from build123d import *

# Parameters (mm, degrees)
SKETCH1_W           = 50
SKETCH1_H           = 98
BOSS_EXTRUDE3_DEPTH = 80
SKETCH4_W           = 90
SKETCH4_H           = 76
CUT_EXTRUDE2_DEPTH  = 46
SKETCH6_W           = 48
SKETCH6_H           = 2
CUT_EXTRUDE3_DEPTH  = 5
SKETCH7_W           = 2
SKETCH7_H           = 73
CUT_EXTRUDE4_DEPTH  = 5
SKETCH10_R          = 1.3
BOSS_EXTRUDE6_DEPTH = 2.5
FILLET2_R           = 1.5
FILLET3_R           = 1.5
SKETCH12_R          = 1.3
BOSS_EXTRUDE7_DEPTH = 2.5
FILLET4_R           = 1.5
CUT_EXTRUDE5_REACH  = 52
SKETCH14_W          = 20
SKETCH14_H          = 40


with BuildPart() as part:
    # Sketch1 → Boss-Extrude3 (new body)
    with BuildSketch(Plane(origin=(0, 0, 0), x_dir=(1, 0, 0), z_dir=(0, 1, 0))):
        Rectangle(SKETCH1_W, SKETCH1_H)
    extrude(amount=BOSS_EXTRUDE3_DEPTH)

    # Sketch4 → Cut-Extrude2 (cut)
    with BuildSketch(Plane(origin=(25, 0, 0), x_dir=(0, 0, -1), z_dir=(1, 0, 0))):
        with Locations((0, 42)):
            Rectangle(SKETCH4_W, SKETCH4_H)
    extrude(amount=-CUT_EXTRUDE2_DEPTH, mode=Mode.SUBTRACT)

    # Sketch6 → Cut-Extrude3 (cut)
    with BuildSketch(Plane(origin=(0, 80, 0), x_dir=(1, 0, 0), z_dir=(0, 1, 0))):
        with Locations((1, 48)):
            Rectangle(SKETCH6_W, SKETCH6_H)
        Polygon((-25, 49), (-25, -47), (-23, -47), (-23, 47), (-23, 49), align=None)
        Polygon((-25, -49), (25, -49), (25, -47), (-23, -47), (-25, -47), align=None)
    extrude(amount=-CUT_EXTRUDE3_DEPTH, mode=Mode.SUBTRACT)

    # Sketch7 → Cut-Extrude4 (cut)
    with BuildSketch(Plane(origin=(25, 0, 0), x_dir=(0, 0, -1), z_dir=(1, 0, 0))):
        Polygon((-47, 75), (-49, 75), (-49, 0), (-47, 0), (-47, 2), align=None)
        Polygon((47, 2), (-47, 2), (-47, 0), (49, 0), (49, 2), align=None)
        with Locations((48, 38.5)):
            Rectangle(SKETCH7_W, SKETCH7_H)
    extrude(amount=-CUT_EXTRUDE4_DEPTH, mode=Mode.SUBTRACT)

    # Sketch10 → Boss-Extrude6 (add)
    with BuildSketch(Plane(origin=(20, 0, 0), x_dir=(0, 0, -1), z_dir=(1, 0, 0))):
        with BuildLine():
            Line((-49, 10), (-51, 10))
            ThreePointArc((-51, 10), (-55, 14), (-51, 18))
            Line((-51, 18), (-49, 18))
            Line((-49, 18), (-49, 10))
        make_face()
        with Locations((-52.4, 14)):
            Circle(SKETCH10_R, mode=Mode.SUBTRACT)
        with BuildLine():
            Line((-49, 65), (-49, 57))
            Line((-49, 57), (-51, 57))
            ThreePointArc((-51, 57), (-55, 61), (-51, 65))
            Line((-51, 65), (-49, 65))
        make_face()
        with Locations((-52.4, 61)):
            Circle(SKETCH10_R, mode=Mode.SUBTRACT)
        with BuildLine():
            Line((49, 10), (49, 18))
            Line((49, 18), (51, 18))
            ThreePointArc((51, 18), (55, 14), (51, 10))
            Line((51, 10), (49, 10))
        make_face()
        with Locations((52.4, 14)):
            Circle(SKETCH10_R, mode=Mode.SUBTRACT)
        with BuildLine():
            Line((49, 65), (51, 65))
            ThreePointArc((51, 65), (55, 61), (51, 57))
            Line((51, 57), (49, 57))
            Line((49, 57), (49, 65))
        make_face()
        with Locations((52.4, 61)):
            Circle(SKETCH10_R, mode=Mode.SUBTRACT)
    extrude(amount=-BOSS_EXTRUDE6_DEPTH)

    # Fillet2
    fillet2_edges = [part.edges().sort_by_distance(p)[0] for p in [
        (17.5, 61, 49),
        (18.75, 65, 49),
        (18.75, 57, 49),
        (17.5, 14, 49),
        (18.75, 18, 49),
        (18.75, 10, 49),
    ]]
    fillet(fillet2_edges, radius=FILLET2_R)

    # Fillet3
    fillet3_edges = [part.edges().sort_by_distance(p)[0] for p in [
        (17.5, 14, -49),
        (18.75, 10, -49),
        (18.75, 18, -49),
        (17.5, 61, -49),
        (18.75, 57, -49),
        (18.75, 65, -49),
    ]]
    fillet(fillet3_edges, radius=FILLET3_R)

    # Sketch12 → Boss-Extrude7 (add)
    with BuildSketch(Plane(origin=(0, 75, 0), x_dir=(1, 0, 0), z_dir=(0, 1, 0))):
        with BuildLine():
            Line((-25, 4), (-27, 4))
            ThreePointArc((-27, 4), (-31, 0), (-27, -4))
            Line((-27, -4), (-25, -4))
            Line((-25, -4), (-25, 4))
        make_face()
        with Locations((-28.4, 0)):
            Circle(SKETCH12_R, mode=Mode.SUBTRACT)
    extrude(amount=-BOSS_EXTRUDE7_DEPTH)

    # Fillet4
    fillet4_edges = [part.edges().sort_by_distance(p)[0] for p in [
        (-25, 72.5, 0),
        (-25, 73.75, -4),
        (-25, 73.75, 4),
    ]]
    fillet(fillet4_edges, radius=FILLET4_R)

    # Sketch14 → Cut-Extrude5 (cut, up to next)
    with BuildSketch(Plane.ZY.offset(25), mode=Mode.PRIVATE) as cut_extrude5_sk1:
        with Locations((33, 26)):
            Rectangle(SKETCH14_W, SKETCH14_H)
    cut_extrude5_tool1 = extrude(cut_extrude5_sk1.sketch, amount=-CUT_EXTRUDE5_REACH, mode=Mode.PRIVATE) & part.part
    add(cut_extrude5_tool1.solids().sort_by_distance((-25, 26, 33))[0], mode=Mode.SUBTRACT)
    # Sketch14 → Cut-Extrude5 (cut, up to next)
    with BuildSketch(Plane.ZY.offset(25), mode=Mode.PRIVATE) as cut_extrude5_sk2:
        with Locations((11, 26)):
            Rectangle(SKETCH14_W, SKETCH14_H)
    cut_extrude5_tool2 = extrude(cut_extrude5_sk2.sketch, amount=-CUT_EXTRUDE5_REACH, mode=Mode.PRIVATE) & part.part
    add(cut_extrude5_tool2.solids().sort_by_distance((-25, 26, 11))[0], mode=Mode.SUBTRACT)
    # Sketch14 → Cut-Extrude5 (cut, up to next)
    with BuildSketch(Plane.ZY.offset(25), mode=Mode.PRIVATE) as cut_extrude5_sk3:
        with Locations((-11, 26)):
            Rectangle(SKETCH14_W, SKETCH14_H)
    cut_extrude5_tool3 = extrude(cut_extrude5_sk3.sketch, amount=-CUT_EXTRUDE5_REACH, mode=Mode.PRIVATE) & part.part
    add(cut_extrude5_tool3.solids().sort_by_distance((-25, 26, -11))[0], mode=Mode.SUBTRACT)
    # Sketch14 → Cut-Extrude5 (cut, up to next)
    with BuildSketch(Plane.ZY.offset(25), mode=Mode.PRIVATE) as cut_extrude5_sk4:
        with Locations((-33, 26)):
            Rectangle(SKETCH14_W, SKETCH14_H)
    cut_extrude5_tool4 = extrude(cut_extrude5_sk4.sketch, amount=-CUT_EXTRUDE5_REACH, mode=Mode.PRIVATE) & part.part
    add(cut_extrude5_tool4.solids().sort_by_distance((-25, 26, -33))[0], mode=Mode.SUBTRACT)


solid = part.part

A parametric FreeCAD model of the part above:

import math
import FreeCAD as App
import Part
import Sketcher


def edges_at(feature, points):
    """Names of the edges that pass closest to the given points."""
    edges = feature.Shape.Edges
    near = lambda p: min(range(len(edges)), key=lambda i: edges[i].distToShape(Part.Vertex(*p))[0])
    return sorted({f"Edge{near(p) + 1}" for p in points})

doc = App.newDocument("Part")
body = doc.addObject("PartDesign::Body", "Body")

# Sketch on XZ plane
sketch1 = body.newObject("Sketcher::SketchObject", "Sketch")
sketch1.AttachmentSupport = (doc.getObject("XZ_Plane"), [""])
sketch1.MapMode = "FlatFace"
sketch1.addGeometry([
    Part.LineSegment(App.Vector(-25, -49, 0), App.Vector(-25, 49, 0)),
    Part.LineSegment(App.Vector(-25, 49, 0), App.Vector(25, 49, 0)),
    Part.LineSegment(App.Vector(25, 49, 0), App.Vector(25, -49, 0)),
    Part.LineSegment(App.Vector(25, -49, 0), App.Vector(-25, -49, 0)),
], False)
sketch1.addConstraint([
    Sketcher.Constraint("Coincident", 0, 2, 1, 1),
    Sketcher.Constraint("Coincident", 1, 2, 2, 1),
    Sketcher.Constraint("Coincident", 2, 2, 3, 1),
    Sketcher.Constraint("Coincident", 3, 2, 0, 1),
    Sketcher.Constraint("Vertical", 0),
    Sketcher.Constraint("Horizontal", 1),
    Sketcher.Constraint("Vertical", 2),
    Sketcher.Constraint("Horizontal", 3),
    Sketcher.Constraint("Symmetric", 0, 2, 2, 2, -1, 1),
    Sketcher.Constraint("DistanceX", 1, 1, 1, 2, 50.0),
    Sketcher.Constraint("DistanceY", 0, 1, 0, 2, 98.0),
])
pad1 = body.newObject("PartDesign::Pad", "Pad")
pad1.Profile = sketch1
pad1.Length = 80
pad1.Reversed = True

# Sketch on YZ plane
sketch2 = body.newObject("Sketcher::SketchObject", "Sketch001")
sketch2.AttachmentSupport = (doc.getObject("YZ_Plane"), [""])
sketch2.MapMode = "FlatFace"
sketch2.AttachmentOffset = App.Placement(App.Vector(0, 0, 25), App.Rotation())
sketch2.addGeometry([
    Part.LineSegment(App.Vector(80, 45, 0), App.Vector(4, 45, 0)),
    Part.LineSegment(App.Vector(4, 45, 0), App.Vector(4, -45, 0)),
    Part.LineSegment(App.Vector(4, -45, 0), App.Vector(80, -45, 0)),
    Part.LineSegment(App.Vector(80, -45, 0), App.Vector(80, 45, 0)),
], False)
sketch2.addConstraint([
    Sketcher.Constraint("Coincident", 0, 2, 1, 1),
    Sketcher.Constraint("Coincident", 1, 2, 2, 1),
    Sketcher.Constraint("Coincident", 2, 2, 3, 1),
    Sketcher.Constraint("Coincident", 3, 2, 0, 1),
    Sketcher.Constraint("Horizontal", 0),
    Sketcher.Constraint("Vertical", 1),
    Sketcher.Constraint("Horizontal", 2),
    Sketcher.Constraint("Vertical", 3),
    Sketcher.Constraint("DistanceX", 0, 2, 0, 1, 76.0),
    Sketcher.Constraint("DistanceY", 1, 2, 1, 1, 90.0),
    Sketcher.Constraint("DistanceX", -1, 1, 0, 2, 4.0),
    Sketcher.Constraint("DistanceY", -1, 1, 0, 2, 45.0),
])
pocket1 = body.newObject("PartDesign::Pocket", "Pocket")
pocket1.Profile = sketch2
pocket1.Length = 46

# Sketch on XZ plane
sketch3 = body.newObject("Sketcher::SketchObject", "Sketch002")
sketch3.AttachmentSupport = (doc.getObject("XZ_Plane"), [""])
sketch3.MapMode = "FlatFace"
sketch3.AttachmentOffset = App.Placement(App.Vector(0, 0, -80), App.Rotation())
sketch3.addGeometry([
    Part.LineSegment(App.Vector(-23, -47, 0), App.Vector(25, -47, 0)),  # 0
    Part.LineSegment(App.Vector(25, -47, 0), App.Vector(25, -49, 0)),  # 1
    Part.LineSegment(App.Vector(25, -49, 0), App.Vector(-25, -49, 0)),  # 2
    Part.LineSegment(App.Vector(-25, -49, 0), App.Vector(-25, 49, 0)),  # 3
    Part.LineSegment(App.Vector(-25, 49, 0), App.Vector(25, 49, 0)),  # 4
    Part.LineSegment(App.Vector(25, 49, 0), App.Vector(25, 47, 0)),  # 5
    Part.LineSegment(App.Vector(25, 47, 0), App.Vector(-23, 47, 0)),  # 6
    Part.LineSegment(App.Vector(-23, 47, 0), App.Vector(-23, -47, 0)),  # 7
], False)
sketch3.addConstraint([
    Sketcher.Constraint("Coincident", 0, 2, 1, 1),
    Sketcher.Constraint("Coincident", 1, 2, 2, 1),
    Sketcher.Constraint("Coincident", 2, 2, 3, 1),
    Sketcher.Constraint("Coincident", 3, 2, 4, 1),
    Sketcher.Constraint("Coincident", 4, 2, 5, 1),
    Sketcher.Constraint("Coincident", 5, 2, 6, 1),
    Sketcher.Constraint("Coincident", 6, 2, 7, 1),
    Sketcher.Constraint("Coincident", 7, 2, 0, 1),
    Sketcher.Constraint("Horizontal", 0),
    Sketcher.Constraint("Vertical", 1),
    Sketcher.Constraint("Horizontal", 2),
    Sketcher.Constraint("Vertical", 3),
    Sketcher.Constraint("Horizontal", 4),
    Sketcher.Constraint("Vertical", 5),
    Sketcher.Constraint("Horizontal", 6),
    Sketcher.Constraint("Vertical", 7),
    Sketcher.Constraint("Symmetric", 1, 2, 3, 2, -1, 1),
    Sketcher.Constraint("Symmetric", 0, 2, 5, 2, -1),
    Sketcher.Constraint("DistanceX", 0, 1, 0, 2, 48.0),
    Sketcher.Constraint("DistanceX", 2, 2, 2, 1, 50.0),
    Sketcher.Constraint("DistanceY", 1, 2, 1, 1, 2.0),
    Sketcher.Constraint("DistanceY", 3, 1, 3, 2, 98.0),
])
pocket2 = body.newObject("PartDesign::Pocket", "Pocket001")
pocket2.Profile = sketch3
pocket2.Length = 5
pocket2.Reversed = True

# Sketch on YZ plane
sketch4 = body.newObject("Sketcher::SketchObject", "Sketch003")
sketch4.AttachmentSupport = (doc.getObject("YZ_Plane"), [""])
sketch4.MapMode = "FlatFace"
sketch4.AttachmentOffset = App.Placement(App.Vector(0, 0, 25), App.Rotation())
sketch4.addGeometry([
    Part.LineSegment(App.Vector(75, 47, 0), App.Vector(75, 49, 0)),  # 0
    Part.LineSegment(App.Vector(75, 49, 0), App.Vector(0, 49, 0)),  # 1
    Part.LineSegment(App.Vector(0, 49, 0), App.Vector(0, -49, 0)),  # 2
    Part.LineSegment(App.Vector(0, -49, 0), App.Vector(75, -49, 0)),  # 3
    Part.LineSegment(App.Vector(75, -49, 0), App.Vector(75, -47, 0)),  # 4
    Part.LineSegment(App.Vector(75, -47, 0), App.Vector(2, -47, 0)),  # 5
    Part.LineSegment(App.Vector(2, -47, 0), App.Vector(2, 47, 0)),  # 6
    Part.LineSegment(App.Vector(2, 47, 0), App.Vector(75, 47, 0)),  # 7
], False)
sketch4.addConstraint([
    Sketcher.Constraint("Coincident", 0, 2, 1, 1),
    Sketcher.Constraint("Coincident", 1, 2, 2, 1),
    Sketcher.Constraint("Coincident", 2, 2, 3, 1),
    Sketcher.Constraint("Coincident", 3, 2, 4, 1),
    Sketcher.Constraint("Coincident", 4, 2, 5, 1),
    Sketcher.Constraint("Coincident", 5, 2, 6, 1),
    Sketcher.Constraint("Coincident", 6, 2, 7, 1),
    Sketcher.Constraint("Coincident", 7, 2, 0, 1),
    Sketcher.Constraint("Vertical", 0),
    Sketcher.Constraint("Horizontal", 1),
    Sketcher.Constraint("Vertical", 2),
    Sketcher.Constraint("Horizontal", 3),
    Sketcher.Constraint("Vertical", 4),
    Sketcher.Constraint("Horizontal", 5),
    Sketcher.Constraint("Vertical", 6),
    Sketcher.Constraint("Horizontal", 7),
    Sketcher.Constraint("Symmetric", 1, 2, 2, 2, -1, 1),
    Sketcher.Constraint("Symmetric", 4, 2, 7, 2, -1),
    Sketcher.Constraint("DistanceX", 1, 2, 1, 1, 75.0),
    Sketcher.Constraint("DistanceX", 5, 2, 5, 1, 73.0),
    Sketcher.Constraint("DistanceY", 0, 1, 0, 2, 2.0),
    Sketcher.Constraint("DistanceY", 2, 2, 2, 1, 98.0),
])
pocket3 = body.newObject("PartDesign::Pocket", "Pocket002")
pocket3.Profile = sketch4
pocket3.Length = 5

# Sketch on YZ plane
sketch5 = body.newObject("Sketcher::SketchObject", "Sketch004")
sketch5.AttachmentSupport = (doc.getObject("YZ_Plane"), [""])
sketch5.MapMode = "FlatFace"
sketch5.AttachmentOffset = App.Placement(App.Vector(0, 0, 20), App.Rotation())
sketch5.addGeometry([
    Part.LineSegment(App.Vector(10, 51, 0), App.Vector(10, 49, 0)),  # 0
    Part.LineSegment(App.Vector(10, 49, 0), App.Vector(18, 49, 0)),  # 1
    Part.LineSegment(App.Vector(18, 49, 0), App.Vector(18, 51, 0)),  # 2
    Part.ArcOfCircle(Part.Circle(App.Vector(14, 51, 0), App.Vector(0, 0, 1), 4), math.radians(0), math.radians(180)),  # 3
    Part.Circle(App.Vector(14, 52.4, 0), App.Vector(0, 0, 1), 1.3),  # 4
    Part.LineSegment(App.Vector(57, 49, 0), App.Vector(65, 49, 0)),  # 5
    Part.LineSegment(App.Vector(65, 49, 0), App.Vector(65, 51, 0)),  # 6
    Part.ArcOfCircle(Part.Circle(App.Vector(61, 51, 0), App.Vector(0, 0, 1), 4), math.radians(0), math.radians(180)),  # 7
    Part.LineSegment(App.Vector(57, 51, 0), App.Vector(57, 49, 0)),  # 8
    Part.Circle(App.Vector(61, 52.4, 0), App.Vector(0, 0, 1), 1.3),  # 9
    Part.LineSegment(App.Vector(18, -49, 0), App.Vector(10, -49, 0)),  # 10
    Part.LineSegment(App.Vector(10, -49, 0), App.Vector(10, -51, 0)),  # 11
    Part.ArcOfCircle(Part.Circle(App.Vector(14, -51, 0), App.Vector(0, 0, 1), 4), math.radians(180), math.radians(360)),  # 12
    Part.LineSegment(App.Vector(18, -51, 0), App.Vector(18, -49, 0)),  # 13
    Part.Circle(App.Vector(14, -52.4, 0), App.Vector(0, 0, 1), 1.3),  # 14
    Part.LineSegment(App.Vector(65, -51, 0), App.Vector(65, -49, 0)),  # 15
    Part.LineSegment(App.Vector(65, -49, 0), App.Vector(57, -49, 0)),  # 16
    Part.LineSegment(App.Vector(57, -49, 0), App.Vector(57, -51, 0)),  # 17
    Part.ArcOfCircle(Part.Circle(App.Vector(61, -51, 0), App.Vector(0, 0, 1), 4), math.radians(180), math.radians(360)),  # 18
    Part.Circle(App.Vector(61, -52.4, 0), App.Vector(0, 0, 1), 1.3),  # 19
], False)
sketch5.addConstraint([
    Sketcher.Constraint("Coincident", 0, 2, 1, 1),
    Sketcher.Constraint("Coincident", 1, 2, 2, 1),
    Sketcher.Constraint("Tangent", 2, 2, 3, 1),
    Sketcher.Constraint("Tangent", 3, 2, 0, 1),
    Sketcher.Constraint("Coincident", 5, 2, 6, 1),
    Sketcher.Constraint("Tangent", 6, 2, 7, 1),
    Sketcher.Constraint("Tangent", 7, 2, 8, 1),
    Sketcher.Constraint("Coincident", 8, 2, 5, 1),
    Sketcher.Constraint("Coincident", 10, 2, 11, 1),
    Sketcher.Constraint("Tangent", 11, 2, 12, 1),
    Sketcher.Constraint("Tangent", 12, 2, 13, 1),
    Sketcher.Constraint("Coincident", 13, 2, 10, 1),
    Sketcher.Constraint("Coincident", 15, 2, 16, 1),
    Sketcher.Constraint("Coincident", 16, 2, 17, 1),
    Sketcher.Constraint("Tangent", 17, 2, 18, 1),
    Sketcher.Constraint("Tangent", 18, 2, 15, 1),
    Sketcher.Constraint("Vertical", 0),
    Sketcher.Constraint("Horizontal", 1),
    Sketcher.Constraint("Vertical", 2),
    Sketcher.Constraint("Horizontal", 5),
    Sketcher.Constraint("Vertical", 6),
    Sketcher.Constraint("Vertical", 8),
    Sketcher.Constraint("Horizontal", 10),
    Sketcher.Constraint("Vertical", 11),
    Sketcher.Constraint("Vertical", 13),
    Sketcher.Constraint("Vertical", 15),
    Sketcher.Constraint("Horizontal", 16),
    Sketcher.Constraint("Vertical", 17),
    Sketcher.Constraint("Equal", 3, 7),
    Sketcher.Constraint("Equal", 4, 9),
    Sketcher.Constraint("Equal", 7, 12),
    Sketcher.Constraint("Equal", 9, 14),
    Sketcher.Constraint("Equal", 12, 18),
    Sketcher.Constraint("Equal", 14, 19),
    Sketcher.Constraint("Symmetric", 3, 3, 12, 3, -1),
    Sketcher.Constraint("Symmetric", 4, 3, 14, 3, -1),
    Sketcher.Constraint("Symmetric", 7, 3, 18, 3, -1),
    Sketcher.Constraint("Symmetric", 9, 3, 19, 3, -1),
    Sketcher.Constraint("Horizontal", 3, 3, 7, 3),
    Sketcher.Constraint("Horizontal", 4, 3, 9, 3),
    Sketcher.Constraint("Horizontal", 1, 2, 5, 2),
    Sketcher.Constraint("Horizontal", 13, 2, 15, 2),
    Sketcher.Constraint("Vertical", 3, 3, 4, 3),
    Sketcher.Constraint("Vertical", 7, 3, 9, 3),
    Sketcher.Constraint("Equal", 8, 11),
    Sketcher.Constraint("Radius", 3, 4.0),
    Sketcher.Constraint("Diameter", 4, 2.6),
    Sketcher.Constraint("DistanceY", 0, 2, 0, 1, 2.0),
    Sketcher.Constraint("DistanceX", -1, 1, 3, 3, 14.0),
    Sketcher.Constraint("DistanceY", -1, 1, 3, 3, 51.0),
    Sketcher.Constraint("DistanceX", -1, 1, 7, 3, 61.0),
    Sketcher.Constraint("DistanceY", -1, 1, 4, 3, 52.4),
])
pad2 = body.newObject("PartDesign::Pad", "Pad001")
pad2.Profile = sketch5
pad2.Length = 2.5
pad2.Reversed = True
doc.recompute()

fillet = body.newObject("PartDesign::Fillet", "Fillet")
fillet.Base = (pad2, edges_at(pad2, [
    (17.5, 61, 49),
    (18.75, 65, 49),
    (18.75, 57, 49),
    (17.5, 14, 49),
    (18.75, 18, 49),
    (18.75, 10, 49),
]))
fillet.Radius = 1.5
doc.recompute()

fillet2 = body.newObject("PartDesign::Fillet", "Fillet001")
fillet2.Base = (fillet, edges_at(fillet, [
    (17.5, 14, -49),
    (18.75, 10, -49),
    (18.75, 18, -49),
    (17.5, 61, -49),
    (18.75, 57, -49),
    (18.75, 65, -49),
]))
fillet2.Radius = 1.5

# Sketch on XZ plane
sketch6 = body.newObject("Sketcher::SketchObject", "Sketch005")
sketch6.AttachmentSupport = (doc.getObject("XZ_Plane"), [""])
sketch6.MapMode = "FlatFace"
sketch6.AttachmentOffset = App.Placement(App.Vector(0, 0, -75), App.Rotation())
sketch6.addGeometry([
    Part.LineSegment(App.Vector(-25, -4, 0), App.Vector(-27, -4, 0)),  # 0
    Part.ArcOfCircle(Part.Circle(App.Vector(-27, 0, 0), App.Vector(0, 0, 1), 4), math.radians(90), math.radians(270)),  # 1
    Part.LineSegment(App.Vector(-27, 4, 0), App.Vector(-25, 4, 0)),  # 2
    Part.LineSegment(App.Vector(-25, 4, 0), App.Vector(-25, -4, 0)),  # 3
    Part.Circle(App.Vector(-28.4, 0, 0), App.Vector(0, 0, 1), 1.3),  # 4
], False)
sketch6.addConstraint([
    Sketcher.Constraint("Tangent", 0, 2, 1, 2),
    Sketcher.Constraint("Tangent", 1, 1, 2, 1),
    Sketcher.Constraint("Coincident", 2, 2, 3, 1),
    Sketcher.Constraint("Coincident", 3, 2, 0, 1),
    Sketcher.Constraint("Horizontal", 0),
    Sketcher.Constraint("Horizontal", 2),
    Sketcher.Constraint("Vertical", 3),
    Sketcher.Constraint("PointOnObject", 1, 3, -1),
    Sketcher.Constraint("PointOnObject", 4, 3, -1),
    Sketcher.Constraint("Radius", 1, 4.0),
    Sketcher.Constraint("Diameter", 4, 2.6),
    Sketcher.Constraint("DistanceX", 0, 2, 0, 1, 2.0),
    Sketcher.Constraint("DistanceX", 1, 3, -1, 1, 27.0),
    Sketcher.Constraint("DistanceX", 4, 3, -1, 1, 28.4),
])
pad3 = body.newObject("PartDesign::Pad", "Pad002")
pad3.Profile = sketch6
pad3.Length = 2.5
doc.recompute()

fillet3 = body.newObject("PartDesign::Fillet", "Fillet002")
fillet3.Base = (pad3, edges_at(pad3, [(-25, 72.5, 0), (-25, 73.75, -4), (-25, 73.75, 4)]))
fillet3.Radius = 1.5

# Sketch on YZ plane
sketch7 = body.newObject("Sketcher::SketchObject", "Sketch006")
sketch7.AttachmentSupport = (doc.getObject("YZ_Plane"), [""])
sketch7.MapMode = "FlatFace"
sketch7.AttachmentOffset = App.Placement(App.Vector(0, 0, -25), App.Rotation())
sketch7.addGeometry([
    Part.LineSegment(App.Vector(46, 23, 0), App.Vector(6, 23, 0)),
    Part.LineSegment(App.Vector(6, 23, 0), App.Vector(6, 43, 0)),
    Part.LineSegment(App.Vector(6, 43, 0), App.Vector(46, 43, 0)),
    Part.LineSegment(App.Vector(46, 43, 0), App.Vector(46, 23, 0)),
], False)
sketch7.addConstraint([
    Sketcher.Constraint("Coincident", 0, 2, 1, 1),
    Sketcher.Constraint("Coincident", 1, 2, 2, 1),
    Sketcher.Constraint("Coincident", 2, 2, 3, 1),
    Sketcher.Constraint("Coincident", 3, 2, 0, 1),
    Sketcher.Constraint("Horizontal", 0),
    Sketcher.Constraint("Vertical", 1),
    Sketcher.Constraint("Horizontal", 2),
    Sketcher.Constraint("Vertical", 3),
    Sketcher.Constraint("DistanceX", 0, 2, 0, 1, 40.0),
    Sketcher.Constraint("DistanceY", 1, 1, 1, 2, 20.0),
    Sketcher.Constraint("DistanceX", -1, 1, 0, 2, 6.0),
    Sketcher.Constraint("DistanceY", -1, 1, 0, 2, 23.0),
])
pocket4 = body.newObject("PartDesign::Pocket", "Pocket003")
pocket4.Profile = sketch7
pocket4.Type = "UpToFirst"
pocket4.Reversed = True

# Sketch on YZ plane
sketch8 = body.newObject("Sketcher::SketchObject", "Sketch007")
sketch8.AttachmentSupport = (doc.getObject("YZ_Plane"), [""])
sketch8.MapMode = "FlatFace"
sketch8.AttachmentOffset = App.Placement(App.Vector(0, 0, -25), App.Rotation())
sketch8.addGeometry([
    Part.LineSegment(App.Vector(46, 1, 0), App.Vector(6, 1, 0)),
    Part.LineSegment(App.Vector(6, 1, 0), App.Vector(6, 21, 0)),
    Part.LineSegment(App.Vector(6, 21, 0), App.Vector(46, 21, 0)),
    Part.LineSegment(App.Vector(46, 21, 0), App.Vector(46, 1, 0)),
], False)
sketch8.addConstraint([
    Sketcher.Constraint("Coincident", 0, 2, 1, 1),
    Sketcher.Constraint("Coincident", 1, 2, 2, 1),
    Sketcher.Constraint("Coincident", 2, 2, 3, 1),
    Sketcher.Constraint("Coincident", 3, 2, 0, 1),
    Sketcher.Constraint("Horizontal", 0),
    Sketcher.Constraint("Vertical", 1),
    Sketcher.Constraint("Horizontal", 2),
    Sketcher.Constraint("Vertical", 3),
    Sketcher.Constraint("DistanceX", 0, 2, 0, 1, 40.0),
    Sketcher.Constraint("DistanceY", 1, 1, 1, 2, 20.0),
    Sketcher.Constraint("DistanceX", -1, 1, 0, 2, 6.0),
    Sketcher.Constraint("DistanceY", -1, 1, 0, 2, 1.0),
])
pocket5 = body.newObject("PartDesign::Pocket", "Pocket004")
pocket5.Profile = sketch8
pocket5.Type = "UpToFirst"
pocket5.Reversed = True

# Sketch on YZ plane
sketch9 = body.newObject("Sketcher::SketchObject", "Sketch008")
sketch9.AttachmentSupport = (doc.getObject("YZ_Plane"), [""])
sketch9.MapMode = "FlatFace"
sketch9.AttachmentOffset = App.Placement(App.Vector(0, 0, -25), App.Rotation())
sketch9.addGeometry([
    Part.LineSegment(App.Vector(46, -21, 0), App.Vector(6, -21, 0)),
    Part.LineSegment(App.Vector(6, -21, 0), App.Vector(6, -1, 0)),
    Part.LineSegment(App.Vector(6, -1, 0), App.Vector(46, -1, 0)),
    Part.LineSegment(App.Vector(46, -1, 0), App.Vector(46, -21, 0)),
], False)
sketch9.addConstraint([
    Sketcher.Constraint("Coincident", 0, 2, 1, 1),
    Sketcher.Constraint("Coincident", 1, 2, 2, 1),
    Sketcher.Constraint("Coincident", 2, 2, 3, 1),
    Sketcher.Constraint("Coincident", 3, 2, 0, 1),
    Sketcher.Constraint("Horizontal", 0),
    Sketcher.Constraint("Vertical", 1),
    Sketcher.Constraint("Horizontal", 2),
    Sketcher.Constraint("Vertical", 3),
    Sketcher.Constraint("DistanceX", 0, 2, 0, 1, 40.0),
    Sketcher.Constraint("DistanceY", 1, 1, 1, 2, 20.0),
    Sketcher.Constraint("DistanceX", -1, 1, 0, 2, 6.0),
    Sketcher.Constraint("DistanceY", 0, 2, -1, 1, 21.0),
])
pocket6 = body.newObject("PartDesign::Pocket", "Pocket005")
pocket6.Profile = sketch9
pocket6.Type = "UpToFirst"
pocket6.Reversed = True

# Sketch on YZ plane
sketch10 = body.newObject("Sketcher::SketchObject", "Sketch009")
sketch10.AttachmentSupport = (doc.getObject("YZ_Plane"), [""])
sketch10.MapMode = "FlatFace"
sketch10.AttachmentOffset = App.Placement(App.Vector(0, 0, -25), App.Rotation())
sketch10.addGeometry([
    Part.LineSegment(App.Vector(46, -43, 0), App.Vector(6, -43, 0)),
    Part.LineSegment(App.Vector(6, -43, 0), App.Vector(6, -23, 0)),
    Part.LineSegment(App.Vector(6, -23, 0), App.Vector(46, -23, 0)),
    Part.LineSegment(App.Vector(46, -23, 0), App.Vector(46, -43, 0)),
], False)
sketch10.addConstraint([
    Sketcher.Constraint("Coincident", 0, 2, 1, 1),
    Sketcher.Constraint("Coincident", 1, 2, 2, 1),
    Sketcher.Constraint("Coincident", 2, 2, 3, 1),
    Sketcher.Constraint("Coincident", 3, 2, 0, 1),
    Sketcher.Constraint("Horizontal", 0),
    Sketcher.Constraint("Vertical", 1),
    Sketcher.Constraint("Horizontal", 2),
    Sketcher.Constraint("Vertical", 3),
    Sketcher.Constraint("DistanceX", 0, 2, 0, 1, 40.0),
    Sketcher.Constraint("DistanceY", 1, 1, 1, 2, 20.0),
    Sketcher.Constraint("DistanceX", -1, 1, 0, 2, 6.0),
    Sketcher.Constraint("DistanceY", 0, 2, -1, 1, 43.0),
])
pocket7 = body.newObject("PartDesign::Pocket", "Pocket006")
pocket7.Profile = sketch10
pocket7.Type = "UpToFirst"
pocket7.Reversed = True

doc.recompute()
